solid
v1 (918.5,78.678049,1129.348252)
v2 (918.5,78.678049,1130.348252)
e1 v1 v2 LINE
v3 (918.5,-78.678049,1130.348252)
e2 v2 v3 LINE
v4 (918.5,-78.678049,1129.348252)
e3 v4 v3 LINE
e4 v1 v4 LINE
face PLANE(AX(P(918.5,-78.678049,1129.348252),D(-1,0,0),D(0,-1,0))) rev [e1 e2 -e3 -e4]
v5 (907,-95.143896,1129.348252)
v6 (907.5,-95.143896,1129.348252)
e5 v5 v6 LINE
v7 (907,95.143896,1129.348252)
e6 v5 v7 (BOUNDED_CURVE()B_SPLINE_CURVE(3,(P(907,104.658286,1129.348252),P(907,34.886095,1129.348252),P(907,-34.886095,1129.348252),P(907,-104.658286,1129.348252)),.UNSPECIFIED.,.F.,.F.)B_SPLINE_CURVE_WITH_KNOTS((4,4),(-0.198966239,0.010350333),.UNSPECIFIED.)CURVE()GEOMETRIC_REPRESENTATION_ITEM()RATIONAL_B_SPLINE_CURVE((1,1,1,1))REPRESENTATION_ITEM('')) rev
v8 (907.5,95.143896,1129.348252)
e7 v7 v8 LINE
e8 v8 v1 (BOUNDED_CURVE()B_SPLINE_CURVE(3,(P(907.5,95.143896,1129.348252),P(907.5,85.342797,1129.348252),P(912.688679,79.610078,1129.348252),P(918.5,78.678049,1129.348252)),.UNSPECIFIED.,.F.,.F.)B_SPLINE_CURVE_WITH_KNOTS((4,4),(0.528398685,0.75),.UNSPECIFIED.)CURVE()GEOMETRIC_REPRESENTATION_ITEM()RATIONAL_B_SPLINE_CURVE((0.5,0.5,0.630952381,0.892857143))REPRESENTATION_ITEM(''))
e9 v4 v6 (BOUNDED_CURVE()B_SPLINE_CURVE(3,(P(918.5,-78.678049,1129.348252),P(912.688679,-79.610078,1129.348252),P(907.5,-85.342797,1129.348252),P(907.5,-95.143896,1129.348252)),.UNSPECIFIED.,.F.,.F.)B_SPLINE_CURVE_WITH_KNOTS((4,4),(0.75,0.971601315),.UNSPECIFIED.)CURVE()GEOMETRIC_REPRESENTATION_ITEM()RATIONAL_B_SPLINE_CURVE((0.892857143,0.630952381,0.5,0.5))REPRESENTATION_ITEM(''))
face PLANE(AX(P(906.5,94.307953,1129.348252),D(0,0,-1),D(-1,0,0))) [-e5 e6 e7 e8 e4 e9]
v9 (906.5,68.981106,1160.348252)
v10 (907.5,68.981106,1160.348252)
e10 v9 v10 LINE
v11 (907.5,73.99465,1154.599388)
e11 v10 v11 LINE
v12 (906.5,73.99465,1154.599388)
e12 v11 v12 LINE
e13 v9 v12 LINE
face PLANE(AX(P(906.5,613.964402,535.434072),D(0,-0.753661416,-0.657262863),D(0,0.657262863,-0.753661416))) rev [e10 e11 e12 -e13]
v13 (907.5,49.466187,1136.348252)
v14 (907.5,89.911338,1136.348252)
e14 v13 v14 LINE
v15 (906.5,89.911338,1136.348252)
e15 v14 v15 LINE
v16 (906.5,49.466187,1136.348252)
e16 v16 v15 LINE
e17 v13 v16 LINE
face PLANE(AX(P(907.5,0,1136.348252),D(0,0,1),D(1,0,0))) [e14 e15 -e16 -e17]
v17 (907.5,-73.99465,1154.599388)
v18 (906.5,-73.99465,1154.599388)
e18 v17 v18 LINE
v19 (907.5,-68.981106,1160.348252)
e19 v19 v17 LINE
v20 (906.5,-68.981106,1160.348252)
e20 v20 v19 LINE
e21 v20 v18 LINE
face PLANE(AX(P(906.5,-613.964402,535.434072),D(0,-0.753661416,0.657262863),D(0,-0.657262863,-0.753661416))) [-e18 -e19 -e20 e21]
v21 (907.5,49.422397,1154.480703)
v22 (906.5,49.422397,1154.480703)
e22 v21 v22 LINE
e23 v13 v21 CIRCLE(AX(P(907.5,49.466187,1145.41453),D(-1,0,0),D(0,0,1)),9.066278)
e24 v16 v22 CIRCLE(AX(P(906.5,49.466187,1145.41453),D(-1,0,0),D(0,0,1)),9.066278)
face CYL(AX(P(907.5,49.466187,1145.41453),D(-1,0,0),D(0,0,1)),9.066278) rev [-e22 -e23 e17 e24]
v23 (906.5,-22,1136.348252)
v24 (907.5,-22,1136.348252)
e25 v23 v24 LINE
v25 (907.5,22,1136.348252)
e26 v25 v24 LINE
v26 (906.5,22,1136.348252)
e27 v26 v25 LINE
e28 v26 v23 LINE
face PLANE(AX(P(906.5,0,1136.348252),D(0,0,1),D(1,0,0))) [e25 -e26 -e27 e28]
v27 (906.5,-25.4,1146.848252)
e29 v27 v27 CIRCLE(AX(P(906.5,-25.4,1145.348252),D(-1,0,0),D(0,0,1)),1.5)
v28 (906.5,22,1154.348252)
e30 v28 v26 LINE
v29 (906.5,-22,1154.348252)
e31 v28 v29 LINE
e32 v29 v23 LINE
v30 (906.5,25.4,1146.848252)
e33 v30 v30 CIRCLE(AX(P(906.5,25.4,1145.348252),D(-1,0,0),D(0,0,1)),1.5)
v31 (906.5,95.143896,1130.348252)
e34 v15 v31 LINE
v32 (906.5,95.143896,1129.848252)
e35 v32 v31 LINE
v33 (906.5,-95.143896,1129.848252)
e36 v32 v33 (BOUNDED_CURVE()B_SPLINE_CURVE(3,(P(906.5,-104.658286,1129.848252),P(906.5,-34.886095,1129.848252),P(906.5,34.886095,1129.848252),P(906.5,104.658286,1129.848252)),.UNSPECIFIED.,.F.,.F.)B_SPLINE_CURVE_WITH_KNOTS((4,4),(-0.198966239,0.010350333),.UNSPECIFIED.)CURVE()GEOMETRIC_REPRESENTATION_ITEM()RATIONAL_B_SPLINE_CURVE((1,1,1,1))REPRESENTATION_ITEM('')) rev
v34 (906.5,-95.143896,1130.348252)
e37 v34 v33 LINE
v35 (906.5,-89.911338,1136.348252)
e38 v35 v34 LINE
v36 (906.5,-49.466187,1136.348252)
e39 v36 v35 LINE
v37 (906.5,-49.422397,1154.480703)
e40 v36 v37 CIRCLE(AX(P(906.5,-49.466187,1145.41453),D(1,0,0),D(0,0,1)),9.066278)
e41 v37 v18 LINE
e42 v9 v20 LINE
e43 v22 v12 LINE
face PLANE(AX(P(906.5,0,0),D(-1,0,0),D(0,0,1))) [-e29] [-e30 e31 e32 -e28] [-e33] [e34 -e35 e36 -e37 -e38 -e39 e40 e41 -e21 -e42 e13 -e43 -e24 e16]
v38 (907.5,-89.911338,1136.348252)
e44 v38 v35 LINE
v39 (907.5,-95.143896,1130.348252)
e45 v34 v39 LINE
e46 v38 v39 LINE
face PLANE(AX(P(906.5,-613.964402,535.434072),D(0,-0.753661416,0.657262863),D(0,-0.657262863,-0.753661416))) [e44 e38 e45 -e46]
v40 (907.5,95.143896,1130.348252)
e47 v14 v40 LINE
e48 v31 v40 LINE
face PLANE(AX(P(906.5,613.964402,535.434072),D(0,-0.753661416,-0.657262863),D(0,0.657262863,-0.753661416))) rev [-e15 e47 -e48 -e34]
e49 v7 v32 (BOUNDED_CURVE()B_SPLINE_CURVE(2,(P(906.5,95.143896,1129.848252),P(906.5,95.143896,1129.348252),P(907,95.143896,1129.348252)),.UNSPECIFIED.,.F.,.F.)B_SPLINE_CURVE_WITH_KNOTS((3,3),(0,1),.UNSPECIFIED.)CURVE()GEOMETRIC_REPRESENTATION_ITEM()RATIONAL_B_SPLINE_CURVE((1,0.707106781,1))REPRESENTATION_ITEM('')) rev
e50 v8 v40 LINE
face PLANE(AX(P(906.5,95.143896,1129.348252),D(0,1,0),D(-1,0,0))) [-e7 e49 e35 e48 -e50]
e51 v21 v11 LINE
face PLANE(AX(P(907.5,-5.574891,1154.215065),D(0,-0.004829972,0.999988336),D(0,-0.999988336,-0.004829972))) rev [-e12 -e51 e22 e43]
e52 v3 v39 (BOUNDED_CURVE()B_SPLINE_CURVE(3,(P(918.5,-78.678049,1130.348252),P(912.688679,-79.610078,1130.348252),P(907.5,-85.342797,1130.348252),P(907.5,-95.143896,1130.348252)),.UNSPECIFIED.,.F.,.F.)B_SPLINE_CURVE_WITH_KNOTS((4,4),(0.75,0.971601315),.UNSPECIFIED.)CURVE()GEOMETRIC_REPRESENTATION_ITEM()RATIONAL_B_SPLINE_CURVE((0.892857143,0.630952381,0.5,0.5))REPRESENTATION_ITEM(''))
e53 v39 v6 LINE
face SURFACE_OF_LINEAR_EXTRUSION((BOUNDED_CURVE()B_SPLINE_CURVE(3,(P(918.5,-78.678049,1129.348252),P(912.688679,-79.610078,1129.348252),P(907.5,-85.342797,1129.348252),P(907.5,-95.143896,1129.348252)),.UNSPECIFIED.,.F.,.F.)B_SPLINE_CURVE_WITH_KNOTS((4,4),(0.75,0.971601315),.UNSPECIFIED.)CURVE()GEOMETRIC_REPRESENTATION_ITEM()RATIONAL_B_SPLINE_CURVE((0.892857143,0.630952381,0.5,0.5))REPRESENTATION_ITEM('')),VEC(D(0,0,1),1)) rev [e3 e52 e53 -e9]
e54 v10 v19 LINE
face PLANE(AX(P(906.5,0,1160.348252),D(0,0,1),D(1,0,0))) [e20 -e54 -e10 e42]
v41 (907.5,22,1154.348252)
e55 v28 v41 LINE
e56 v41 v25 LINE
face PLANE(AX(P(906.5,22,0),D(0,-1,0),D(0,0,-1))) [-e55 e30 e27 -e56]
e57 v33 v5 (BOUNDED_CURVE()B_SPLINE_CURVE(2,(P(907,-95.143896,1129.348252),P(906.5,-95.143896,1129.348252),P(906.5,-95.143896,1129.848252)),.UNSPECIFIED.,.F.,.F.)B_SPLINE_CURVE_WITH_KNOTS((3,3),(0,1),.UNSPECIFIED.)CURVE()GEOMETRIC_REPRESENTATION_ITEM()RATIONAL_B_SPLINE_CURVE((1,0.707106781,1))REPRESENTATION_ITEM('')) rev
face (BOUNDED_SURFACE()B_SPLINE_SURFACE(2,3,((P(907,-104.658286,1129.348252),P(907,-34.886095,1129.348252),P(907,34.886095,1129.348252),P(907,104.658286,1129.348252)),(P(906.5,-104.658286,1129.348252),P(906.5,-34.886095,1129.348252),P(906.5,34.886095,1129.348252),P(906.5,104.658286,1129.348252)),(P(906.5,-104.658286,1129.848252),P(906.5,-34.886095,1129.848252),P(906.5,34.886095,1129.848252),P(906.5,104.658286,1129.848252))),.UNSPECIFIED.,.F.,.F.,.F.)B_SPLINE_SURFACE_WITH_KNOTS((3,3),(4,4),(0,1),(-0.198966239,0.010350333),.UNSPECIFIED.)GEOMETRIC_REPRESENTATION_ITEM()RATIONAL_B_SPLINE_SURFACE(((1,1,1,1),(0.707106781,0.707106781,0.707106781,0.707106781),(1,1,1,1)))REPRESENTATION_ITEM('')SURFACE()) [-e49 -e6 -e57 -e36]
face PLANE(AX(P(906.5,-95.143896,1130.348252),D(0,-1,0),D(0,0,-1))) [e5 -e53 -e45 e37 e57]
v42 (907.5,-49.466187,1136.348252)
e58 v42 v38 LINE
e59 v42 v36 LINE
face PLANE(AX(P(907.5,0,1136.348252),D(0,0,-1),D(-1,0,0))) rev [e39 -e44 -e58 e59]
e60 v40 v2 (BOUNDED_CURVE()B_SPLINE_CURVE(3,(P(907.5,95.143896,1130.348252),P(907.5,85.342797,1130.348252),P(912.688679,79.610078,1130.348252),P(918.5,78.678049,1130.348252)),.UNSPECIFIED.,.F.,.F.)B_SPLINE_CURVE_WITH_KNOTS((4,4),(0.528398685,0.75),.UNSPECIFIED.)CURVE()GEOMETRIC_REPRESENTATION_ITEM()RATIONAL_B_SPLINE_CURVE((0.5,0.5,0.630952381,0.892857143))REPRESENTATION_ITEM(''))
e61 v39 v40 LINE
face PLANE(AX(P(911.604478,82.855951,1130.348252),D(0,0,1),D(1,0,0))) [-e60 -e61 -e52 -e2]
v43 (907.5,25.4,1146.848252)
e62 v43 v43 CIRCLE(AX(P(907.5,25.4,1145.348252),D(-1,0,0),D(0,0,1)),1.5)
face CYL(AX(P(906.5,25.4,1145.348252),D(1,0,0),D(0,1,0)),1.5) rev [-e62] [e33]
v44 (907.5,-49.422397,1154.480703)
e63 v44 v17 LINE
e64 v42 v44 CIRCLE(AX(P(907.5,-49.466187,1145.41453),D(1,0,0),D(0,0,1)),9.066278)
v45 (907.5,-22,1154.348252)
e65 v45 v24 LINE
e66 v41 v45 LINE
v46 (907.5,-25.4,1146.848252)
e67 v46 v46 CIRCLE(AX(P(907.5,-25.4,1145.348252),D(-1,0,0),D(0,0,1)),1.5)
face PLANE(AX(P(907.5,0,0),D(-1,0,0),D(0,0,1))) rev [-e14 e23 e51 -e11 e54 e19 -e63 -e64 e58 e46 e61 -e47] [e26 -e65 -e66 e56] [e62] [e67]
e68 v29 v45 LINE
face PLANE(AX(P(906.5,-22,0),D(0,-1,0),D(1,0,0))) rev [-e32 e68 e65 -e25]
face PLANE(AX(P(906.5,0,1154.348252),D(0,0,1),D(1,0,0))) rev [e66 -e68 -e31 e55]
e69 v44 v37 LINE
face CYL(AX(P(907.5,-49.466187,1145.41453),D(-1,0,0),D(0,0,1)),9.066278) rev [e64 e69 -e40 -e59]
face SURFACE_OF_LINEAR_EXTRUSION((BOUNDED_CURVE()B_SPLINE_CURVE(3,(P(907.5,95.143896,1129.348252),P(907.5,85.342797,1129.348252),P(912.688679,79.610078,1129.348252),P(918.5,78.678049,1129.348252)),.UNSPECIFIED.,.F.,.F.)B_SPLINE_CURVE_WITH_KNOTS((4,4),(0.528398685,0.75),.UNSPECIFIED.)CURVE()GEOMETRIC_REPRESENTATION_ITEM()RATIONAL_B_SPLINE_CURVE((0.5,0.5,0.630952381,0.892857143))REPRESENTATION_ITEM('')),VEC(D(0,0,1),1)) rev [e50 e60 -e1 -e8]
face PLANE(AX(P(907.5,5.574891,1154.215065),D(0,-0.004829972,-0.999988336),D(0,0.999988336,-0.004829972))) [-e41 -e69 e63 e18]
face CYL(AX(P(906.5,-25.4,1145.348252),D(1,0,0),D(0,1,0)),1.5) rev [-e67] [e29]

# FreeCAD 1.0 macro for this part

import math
import FreeCAD as App
import Part
import Sketcher
from FreeCAD import Vector


def edges_at(feature, points):
    """Names of the edges that pass closest to the given points."""
    edges = feature.Shape.Edges
    near = lambda p: min(range(len(edges)), key=lambda i: edges[i].distToShape(Part.Vertex(*p))[0])
    return sorted({f"Edge{near(p) + 1}" for p in points})


def add_polygon(sketch, points):
    """Adds a closed chain of lines whose ends are joined by coincident constraints."""
    first, n = sketch.GeometryCount, len(points)
    for a, b in zip(points, points[1:] + points[:1]):
        sketch.addGeometry(Part.LineSegment(App.Vector(*a, 0), App.Vector(*b, 0)), False)
    for i in range(n):
        sketch.addConstraint(Sketcher.Constraint("Coincident", first + i, 2, first + (i + 1) % n, 1))

doc = App.newDocument("Part")
body = doc.addObject("PartDesign::Body", "Body")

sketch1 = body.newObject("Sketcher::SketchObject", "Sketch")
sketch1.AttachmentSupport = (doc.getObject("YZ_Plane"), [""])
sketch1.MapMode = "FlatFace"
sketch1.AttachmentOffset = App.Placement(Vector(0, 0, 907.5), App.Rotation())
add_polygon(sketch1, [(68.981106, 1160.348252), (95.143896, 1130.348252), (-95.143896, 1130.348252), (-68.981106, 1160.348252)])
sketch1.addGeometry(Part.Circle(Vector(-25.4, 1145.348252, 0), Vector(0, 0, 1), 1.5), False)
add_polygon(sketch1, [(-22, 1154.348252), (-22, 1136.348252), (22, 1136.348252), (22, 1154.348252)])
sketch1.addGeometry(Part.Circle(Vector(25.4, 1145.348252, 0), Vector(0, 0, 1), 1.5), False)
sketch1.addConstraint(Sketcher.Constraint("Horizontal", 1))
sketch1.addConstraint(Sketcher.Constraint("Horizontal", 3))
sketch1.addConstraint(Sketcher.Constraint("Vertical", 5))
sketch1.addConstraint(Sketcher.Constraint("Horizontal", 6))
sketch1.addConstraint(Sketcher.Constraint("Vertical", 7))
sketch1.addConstraint(Sketcher.Constraint("Horizontal", 8))
sketch1.addConstraint(Sketcher.Constraint("Equal", 4, 9))
sketch1.addConstraint(Sketcher.Constraint("Symmetric", 4, 3, 9, 3, -2))
sketch1.addConstraint(Sketcher.Constraint("Equal", 0, 2))
sketch1.addConstraint(Sketcher.Constraint("Diameter", 4, 3.0))
sketch1.addConstraint(Sketcher.Constraint("DistanceX", 6, 1, 6, 2, 44.0))
sketch1.addConstraint(Sketcher.Constraint("DistanceY", 5, 2, 5, 1, 18.0))
sketch1.addConstraint(Sketcher.Constraint("DistanceX", 5, 2, -1, 1, 22.0))
sketch1.addConstraint(Sketcher.Constraint("DistanceY", 0, 2, 9, 3, 15.0))
sketch1.addConstraint(Sketcher.Constraint("DistanceY", 1, 2, 2, 2, 30.0))
sketch1.addConstraint(Sketcher.Constraint("DistanceY", 5, 2, 4, 3, 9.0))
sketch1.addConstraint(Sketcher.Constraint("DistanceX", 4, 3, -1, 1, 25.4))
sketch1.addConstraint(Sketcher.Constraint("DistanceX", 2, 2, 0, 2, 164.125002))
sketch1.addConstraint(Sketcher.Constraint("DistanceX", 3, 1, 3, 2, 137.962211))
sketch1.addConstraint(Sketcher.Constraint("DistanceY", -1, 1, 4, 3, 1145.348252))
sketch1.addConstraint(Sketcher.Constraint("DistanceX", -1, 1, 0, 2, 95.143896))
pad1 = body.newObject("PartDesign::Pad", "Pad")
pad1.Profile = sketch1
pad1.Length = 1
pad1.Reversed = True
body2 = doc.addObject("PartDesign::Body", "Body001")

sketch2 = body2.newObject("Sketcher::SketchObject", "Sketch001")
sketch2.AttachmentSupport = (doc.getObject("XY_Plane001"), [""])
sketch2.MapMode = "FlatFace"
sketch2.AttachmentOffset = App.Placement(Vector(0, 0, 1130.348252), App.Rotation())
sketch2.addGeometry(Part.LineSegment(Vector(907.5, -95.143896, 0), Vector(907.5, 95.143896, 0)), False)
sketch2.addGeometry(Part.BSplineCurve([Vector(918.5, 78.678049, 0), Vector(912.688679, 79.610078, 0), Vector(907.5, 85.342797, 0), Vector(907.5, 95.143896, 0)], [4, 4], [0.528398685, 0.75], False, 3, [0.892857143, 0.630952381, 0.5, 0.5], False), False)
sketch2.addGeometry(Part.LineSegment(Vector(918.5, 78.678049, 0), Vector(918.5, -78.678049, 0)), False)
sketch2.addGeometry(Part.BSplineCurve([Vector(907.5, -95.143896, 0), Vector(907.5, -85.342797, 0), Vector(912.688679, -79.610078, 0), Vector(918.5, -78.678049, 0)], [4, 4], [0.75, 0.971601315], False, 3, [0.5, 0.5, 0.630952381, 0.892857143], False), False)
sketch2.addConstraint(Sketcher.Constraint("Block", 1))
sketch2.addConstraint(Sketcher.Constraint("Block", 3))
sketch2.addConstraint(Sketcher.Constraint("Coincident", 0, 2, 1, 2))
sketch2.addConstraint(Sketcher.Constraint("Coincident", 1, 1, 2, 1))
sketch2.addConstraint(Sketcher.Constraint("Coincident", 2, 2, 3, 2))
sketch2.addConstraint(Sketcher.Constraint("Coincident", 3, 1, 0, 1))
pad2 = body2.newObject("PartDesign::Pad", "Pad001")
pad2.Profile = sketch2
pad2.Length = 1
pad2.Reversed = True
body.AllowCompound = True
doc.recompute()

boolean = body.newObject("PartDesign::Boolean", "Boolean")
boolean.Type = "Fuse"
boolean.addObjects([body2])

sketch3 = body.newObject("Sketcher::SketchObject", "Sketch002")
sketch3.AttachmentSupport = (doc.getObject("YZ_Plane"), [""])
sketch3.MapMode = "FlatFace"
sketch3.AttachmentOffset = App.Placement(Vector(0, 0, 907.5), App.Rotation())
add_polygon(sketch3, [(95.143896, 1129.348252), (-95.143896, 1129.348252), (-95.143896, 1130.348252), (95.143896, 1130.348252)])
sketch3.addConstraint(Sketcher.Constraint("Horizontal", 0))
sketch3.addConstraint(Sketcher.Constraint("Vertical", 1))
sketch3.addConstraint(Sketcher.Constraint("Horizontal", 2))
sketch3.addConstraint(Sketcher.Constraint("Vertical", 3))
sketch3.addConstraint(Sketcher.Constraint("DistanceY", 1, 1, 1, 2, 1.0))
sketch3.addConstraint(Sketcher.Constraint("DistanceX", 0, 2, 0, 1, 190.287793))
sketch3.addConstraint(Sketcher.Constraint("DistanceX", 0, 2, -1, 1, 95.143896))
sketch3.addConstraint(Sketcher.Constraint("DistanceY", -1, 1, 0, 2, 1129.348252))
pad3 = body.newObject("PartDesign::Pad", "Pad002")
pad3.Profile = sketch3
pad3.Length = 1
pad3.Reversed = True
doc.recompute()

fillet = body.newObject("PartDesign::Fillet", "Fillet")
fillet.Base = (pad3, edges_at(pad3, [(906.5, 0, 1129.348)]))
fillet.Radius = 0.5

sketch4 = body.newObject("Sketcher::SketchObject", "Sketch003")
sketch4.AttachmentSupport = (doc.getObject("YZ_Plane"), [""])
sketch4.MapMode = "FlatFace"
sketch4.AttachmentOffset = App.Placement(Vector(0, 0, 906.5), App.Rotation())
sketch4.addGeometry(Part.ArcOfCircle(Part.Circle(Vector(49.466187, 1145.41453, 0), Vector(0, 0, 1), 9.066278), math.radians(90.276738), math.radians(180.157796)), False)
sketch4.addGeometry(Part.LineSegment(Vector(49.422397, 1154.480703, 0), Vector(73.99465, 1154.599388, 0)), False)
sketch4.addGeometry(Part.LineSegment(Vector(73.99465, 1154.599388, 0), Vector(89.911338, 1136.348252, 0)), False)
sketch4.addGeometry(Part.LineSegment(Vector(89.911338, 1136.348252, 0), Vector(49.466187, 1136.348252, 0)), False)
sketch4.addGeometry(Part.ArcOfCircle(Part.Circle(Vector(49.466187, 1145.41453, 0), Vector(0, 0, 1), 9.066278), math.radians(-179.842204), math.radians(-90)), False)
sketch4.addConstraint(Sketcher.Constraint("Tangent", 0, 1, 1, 1))
sketch4.addConstraint(Sketcher.Constraint("Coincident", 1, 2, 2, 1))
sketch4.addConstraint(Sketcher.Constraint("Coincident", 2, 2, 3, 1))
sketch4.addConstraint(Sketcher.Constraint("Tangent", 3, 2, 4, 2))
sketch4.addConstraint(Sketcher.Constraint("Tangent", 4, 1, 0, 2))
sketch4.addConstraint(Sketcher.Constraint("Horizontal", 3))
sketch4.addConstraint(Sketcher.Constraint("Equal", 0, 4))
sketch4.addConstraint(Sketcher.Constraint("Radius", 0, 9.066278))
sketch4.addConstraint(Sketcher.Constraint("DistanceX", 3, 2, 3, 1, 40.445151))
sketch4.addConstraint(Sketcher.Constraint("Distance", 1, 24.57254))
sketch4.addConstraint(Sketcher.Constraint("DistanceY", -1, 1, 0, 3, 1145.41453))
sketch4.addConstraint(Sketcher.Constraint("DistanceX", -1, 1, 1, 2, 73.99465))
sketch4.addConstraint(Sketcher.Constraint("DistanceX", -1, 1, 2, 2, 89.911338))
sketch4.addConstraint(Sketcher.Constraint("DistanceY", -1, 1, 4, 1, 1145.389561))
pocket1 = body.newObject("PartDesign::Pocket", "Pocket")
pocket1.Profile = sketch4
pocket1.Length = 1
pocket1.Reversed = True
doc.recompute()

mirrored = body.newObject("PartDesign::Mirrored", "Mirrored")
mirrored.Originals = [pocket1]
mirrored.MirrorPlane = (doc.getObject("XZ_Plane"), [""])
body.Tip = mirrored

doc.recompute()
